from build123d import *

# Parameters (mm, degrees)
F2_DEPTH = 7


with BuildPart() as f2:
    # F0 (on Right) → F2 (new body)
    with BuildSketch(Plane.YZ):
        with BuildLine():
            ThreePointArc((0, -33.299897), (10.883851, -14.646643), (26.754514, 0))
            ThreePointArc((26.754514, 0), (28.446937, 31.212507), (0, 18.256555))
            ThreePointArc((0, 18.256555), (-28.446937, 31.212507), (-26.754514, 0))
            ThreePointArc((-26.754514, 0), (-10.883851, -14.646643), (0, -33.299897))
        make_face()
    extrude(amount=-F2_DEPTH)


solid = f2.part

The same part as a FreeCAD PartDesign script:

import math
import FreeCAD as App
import Part
import Sketcher

V = App.Vector
Q = App.Units.Quantity

doc = App.newDocument("Part")
body = doc.addObject("PartDesign::Body", "Body")

# Sketch on YZ plane
sketch1 = doc.addObject("Sketcher::SketchObject", "Sketch")
body.addObject(sketch1)
sketch1.AttachmentSupport = (doc.YZ_Plane, [""])
sketch1.MapMode = "FlatFace"
sketch1.addGeometry([
    Part.ArcOfCircle(Part.Circle(V(68, -60, 0), V(0, 0, 1), 73), math.radians(124), math.radians(158)),
    Part.ArcOfCircle(Part.Circle(V(18, 16, 0), V(0, 0, 1), 18), math.radians(-62), math.radians(173)),
    Part.ArcOfCircle(Part.Circle(V(-18, 16, 0), V(0, 0, 1), 18), math.radians(7), math.radians(242)),
    Part.ArcOfCircle(Part.Circle(V(-68, -60, 0), V(0, 0, 1), 73), math.radians(22), math.radians(56)),
], False)
sketch1.addConstraint([
    Sketcher.Constraint("Coincident", 0, 1, 1, 1),
    Sketcher.Constraint("Coincident", 1, 2, 2, 1),
    Sketcher.Constraint("Coincident", 2, 2, 3, 2),
    Sketcher.Constraint("Coincident", 3, 1, 0, 2),
    Sketcher.Constraint("Equal", 1, 2),
    Sketcher.Constraint("Equal", 0, 3),
    Sketcher.Constraint("Symmetric", 0, 1, 2, 2, -1, 1),
    Sketcher.Constraint("Symmetric", 1, 3, 2, 3, -2),
    Sketcher.Constraint("PointOnObject", 3, 1, -2),
    Sketcher.Constraint("Radius", 1, Q("18.2729 mm")),
    Sketcher.Constraint("Radius", 0, Q("72.909845 mm")),
    Sketcher.Constraint("DistanceY", 0, 3, -1, 1, Q("60.312229 mm")),
    Sketcher.Constraint("DistanceX", 2, 3, 1, 3, Q("36.294849 mm")),
    Sketcher.Constraint("DistanceX", 2, 3, 0, 3, Q("85.868761 mm")),
])
pad1 = doc.addObject("PartDesign::Pad", "Pad")
body.addObject(pad1)
pad1.Profile = sketch1
pad1.Length = 7
pad1.Reversed = True

doc.recompute()
